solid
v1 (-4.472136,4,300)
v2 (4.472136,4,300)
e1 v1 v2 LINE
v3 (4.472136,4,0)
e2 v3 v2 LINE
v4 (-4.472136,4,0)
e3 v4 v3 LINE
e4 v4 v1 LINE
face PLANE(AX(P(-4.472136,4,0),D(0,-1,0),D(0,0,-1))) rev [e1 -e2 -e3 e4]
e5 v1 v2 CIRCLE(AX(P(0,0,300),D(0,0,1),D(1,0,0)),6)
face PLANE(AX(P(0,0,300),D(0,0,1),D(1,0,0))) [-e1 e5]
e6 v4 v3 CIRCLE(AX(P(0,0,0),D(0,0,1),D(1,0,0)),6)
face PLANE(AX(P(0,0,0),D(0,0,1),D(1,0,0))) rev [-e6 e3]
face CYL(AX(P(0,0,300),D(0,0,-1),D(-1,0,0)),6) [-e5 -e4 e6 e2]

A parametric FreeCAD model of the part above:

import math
import FreeCAD as App
import Part
import Sketcher
Q = App.Units.Quantity

doc = App.newDocument("Part")
body = doc.addObject("PartDesign::Body", "Body")

# Sketch on XY plane
sketch1 = body.newObject("Sketcher::SketchObject", "Sketch")
sketch1.AttachmentSupport = (doc.getObject("XY_Plane"), [""])
sketch1.MapMode = "FlatFace"
sketch1.addGeometry(Part.Circle(App.Vector(0, 0, 0), App.Vector(0, 0, 1), 6), False)
sketch1.addConstraint(Sketcher.Constraint("Coincident", 0, 3, -1, 1))
sketch1.addConstraint(Sketcher.Constraint("Diameter", 0, Q("12 mm")))
pad1 = body.newObject("PartDesign::Pad", "Pad")
pad1.Profile = sketch1
pad1.Length = 300

# Sketch on XY plane
sketch2 = body.newObject("Sketcher::SketchObject", "Sketch001")
sketch2.AttachmentSupport = (doc.getObject("XY_Plane"), [""])
sketch2.MapMode = "FlatFace"
sketch2.AttachmentOffset = App.Placement(App.Vector(0, 0, 300), App.Rotation())
sketch2.addGeometry(Part.LineSegment(App.Vector(-4.472136, 4, 0), App.Vector(4.472136, 4, 0)), False)
sketch2.addGeometry(Part.ArcOfCircle(Part.Circle(App.Vector(0, 0, 0), App.Vector(0, 0, 1), 6), math.radians(41.810315), math.radians(138.189685)), False)
sketch2.addConstraint(Sketcher.Constraint("Coincident", 0, 1, 1, 2))
sketch2.addConstraint(Sketcher.Constraint("Coincident", 1, 1, 0, 2))
sketch2.addConstraint(Sketcher.Constraint("Horizontal", 0))
sketch2.addConstraint(Sketcher.Constraint("Coincident", 1, 3, -1, 1))
sketch2.addConstraint(Sketcher.Constraint("Radius", 1, Q("6 mm")))
sketch2.addConstraint(Sketcher.Constraint("DistanceY", -1, 1, 0, 1, Q("4 mm")))
pocket1 = body.newObject("PartDesign::Pocket", "Pocket")
pocket1.Profile = sketch2
pocket1.Type = "ThroughAll"

doc.recompute()
